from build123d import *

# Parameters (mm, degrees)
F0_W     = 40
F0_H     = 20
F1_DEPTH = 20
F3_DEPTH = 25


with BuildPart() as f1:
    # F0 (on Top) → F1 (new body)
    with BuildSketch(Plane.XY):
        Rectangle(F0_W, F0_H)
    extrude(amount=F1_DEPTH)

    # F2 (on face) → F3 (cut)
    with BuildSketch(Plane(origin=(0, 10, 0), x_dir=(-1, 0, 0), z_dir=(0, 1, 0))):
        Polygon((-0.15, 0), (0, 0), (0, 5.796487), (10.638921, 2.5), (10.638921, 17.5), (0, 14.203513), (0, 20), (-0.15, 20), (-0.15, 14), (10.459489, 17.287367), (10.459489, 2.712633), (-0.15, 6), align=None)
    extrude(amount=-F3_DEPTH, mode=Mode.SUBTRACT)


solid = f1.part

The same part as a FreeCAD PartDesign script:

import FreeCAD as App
import Part
import Sketcher
Q = App.Units.Quantity

doc = App.newDocument("Part")
body = doc.addObject("PartDesign::Body", "Body")
body.AllowCompound = True

sketch1 = body.newObject("Sketcher::SketchObject", "Sketch")
sketch1.AttachmentSupport = (doc.getObject("XY_Plane"), [""])
sketch1.MapMode = "FlatFace"
sketch1.addGeometry(Part.LineSegment(App.Vector(-20, 10, 0), App.Vector(-20, -10, 0)), False)
sketch1.addGeometry(Part.LineSegment(App.Vector(-20, -10, 0), App.Vector(20, -10, 0)), False)
sketch1.addGeometry(Part.LineSegment(App.Vector(20, -10, 0), App.Vector(20, 10, 0)), False)
sketch1.addGeometry(Part.LineSegment(App.Vector(20, 10, 0), App.Vector(-20, 10, 0)), False)
sketch1.addConstraint(Sketcher.Constraint("Coincident", 0, 2, 1, 1))
sketch1.addConstraint(Sketcher.Constraint("Coincident", 1, 2, 2, 1))
sketch1.addConstraint(Sketcher.Constraint("Coincident", 2, 2, 3, 1))
sketch1.addConstraint(Sketcher.Constraint("Coincident", 3, 2, 0, 1))
sketch1.addConstraint(Sketcher.Constraint("Vertical", 0))
sketch1.addConstraint(Sketcher.Constraint("Horizontal", 1))
sketch1.addConstraint(Sketcher.Constraint("Vertical", 2))
sketch1.addConstraint(Sketcher.Constraint("Horizontal", 3))
sketch1.addConstraint(Sketcher.Constraint("Symmetric", 0, 2, 2, 2, -1, 1))
sketch1.addConstraint(Sketcher.Constraint("DistanceX", 1, 1, 1, 2, Q("40 mm")))
sketch1.addConstraint(Sketcher.Constraint("DistanceY", 0, 2, 0, 1, Q("20 mm")))
pad1 = body.newObject("PartDesign::Pad", "Pad")
pad1.Profile = sketch1
pad1.Length = 20

sketch2 = body.newObject("Sketcher::SketchObject", "Sketch001")
sketch2.AttachmentSupport = (doc.getObject("XZ_Plane"), [""])
sketch2.MapMode = "FlatFace"
sketch2.AttachmentOffset = App.Placement(App.Vector(0, 0, -10), App.Rotation())
sketch2.addGeometry(Part.LineSegment(App.Vector(0.15, 0, 0), App.Vector(0, 0, 0)), False)
sketch2.addGeometry(Part.LineSegment(App.Vector(0, 0, 0), App.Vector(0, 5.796487, 0)), False)
sketch2.addGeometry(Part.LineSegment(App.Vector(0, 5.796487, 0), App.Vector(-10.638921, 2.5, 0)), False)
sketch2.addGeometry(Part.LineSegment(App.Vector(-10.638921, 2.5, 0), App.Vector(-10.638921, 17.5, 0)), False)
sketch2.addGeometry(Part.LineSegment(App.Vector(-10.638921, 17.5, 0), App.Vector(0, 14.203513, 0)), False)
sketch2.addGeometry(Part.LineSegment(App.Vector(0, 14.203513, 0), App.Vector(0, 20, 0)), False)
sketch2.addGeometry(Part.LineSegment(App.Vector(0, 20, 0), App.Vector(0.15, 20, 0)), False)
sketch2.addGeometry(Part.LineSegment(App.Vector(0.15, 20, 0), App.Vector(0.15, 14, 0)), False)
sketch2.addGeometry(Part.LineSegment(App.Vector(0.15, 14, 0), App.Vector(-10.459489, 17.287367, 0)), False)
sketch2.addGeometry(Part.LineSegment(App.Vector(-10.459489, 17.287367, 0), App.Vector(-10.459489, 2.712633, 0)), False)
sketch2.addGeometry(Part.LineSegment(App.Vector(-10.459489, 2.712633, 0), App.Vector(0.15, 6, 0)), False)
sketch2.addGeometry(Part.LineSegment(App.Vector(0.15, 6, 0), App.Vector(0.15, 0, 0)), False)
sketch2.addConstraint(Sketcher.Constraint("Coincident", 0, 2, 1, 1))
sketch2.addConstraint(Sketcher.Constraint("Coincident", 1, 2, 2, 1))
sketch2.addConstraint(Sketcher.Constraint("Coincident", 2, 2, 3, 1))
sketch2.addConstraint(Sketcher.Constraint("Coincident", 3, 2, 4, 1))
sketch2.addConstraint(Sketcher.Constraint("Coincident", 4, 2, 5, 1))
sketch2.addConstraint(Sketcher.Constraint("Coincident", 5, 2, 6, 1))
sketch2.addConstraint(Sketcher.Constraint("Coincident", 6, 2, 7, 1))
sketch2.addConstraint(Sketcher.Constraint("Coincident", 7, 2, 8, 1))
sketch2.addConstraint(Sketcher.Constraint("Coincident", 8, 2, 9, 1))
sketch2.addConstraint(Sketcher.Constraint("Coincident", 9, 2, 10, 1))
sketch2.addConstraint(Sketcher.Constraint("Coincident", 10, 2, 11, 1))
sketch2.addConstraint(Sketcher.Constraint("Coincident", 11, 2, 0, 1))
sketch2.addConstraint(Sketcher.Constraint("Horizontal", 0))
sketch2.addConstraint(Sketcher.Constraint("Vertical", 1))
sketch2.addConstraint(Sketcher.Constraint("Vertical", 3))
sketch2.addConstraint(Sketcher.Constraint("Vertical", 5))
sketch2.addConstraint(Sketcher.Constraint("Horizontal", 6))
sketch2.addConstraint(Sketcher.Constraint("Vertical", 7))
sketch2.addConstraint(Sketcher.Constraint("Vertical", 9))
sketch2.addConstraint(Sketcher.Constraint("Vertical", 11))
sketch2.addConstraint(Sketcher.Constraint("Coincident", 0, 2, -1, 1))
sketch2.addConstraint(Sketcher.Constraint("PointOnObject", 4, 2, -2))
sketch2.addConstraint(Sketcher.Constraint("Parallel", 4, 8))
sketch2.addConstraint(Sketcher.Constraint("Parallel", 2, 10))
sketch2.addConstraint(Sketcher.Constraint("Vertical", 7, 2, 10, 2))
sketch2.addConstraint(Sketcher.Constraint("Equal", 1, 5))
sketch2.addConstraint(Sketcher.Constraint("Equal", 7, 11))
sketch2.addConstraint(Sketcher.Constraint("Equal", 2, 4))
sketch2.addConstraint(Sketcher.Constraint("DistanceY", 3, 1, 3, 2, Q("15 mm")))
sketch2.addConstraint(Sketcher.Constraint("DistanceY", 7, 2, 7, 1, Q("6 mm")))
sketch2.addConstraint(Sketcher.Constraint("DistanceY", -1, 1, 5, 2, Q("20 mm")))
sketch2.addConstraint(Sketcher.Constraint("DistanceX", 0, 2, 0, 1, Q("0.15 mm")))
sketch2.addConstraint(Sketcher.Constraint("Distance", 2, Q("11.137929 mm")))
sketch2.addConstraint(Sketcher.Constraint("DistanceY", 1, 1, 1, 2, Q("5.796487 mm")))
sketch2.addConstraint(Sketcher.Constraint("DistanceY", 9, 2, 9, 1, Q("14.574734 mm")))
pocket1 = body.newObject("PartDesign::Pocket", "Pocket")
pocket1.Profile = sketch2
pocket1.Length = 25
pocket1.Reversed = True

doc.recompute()
